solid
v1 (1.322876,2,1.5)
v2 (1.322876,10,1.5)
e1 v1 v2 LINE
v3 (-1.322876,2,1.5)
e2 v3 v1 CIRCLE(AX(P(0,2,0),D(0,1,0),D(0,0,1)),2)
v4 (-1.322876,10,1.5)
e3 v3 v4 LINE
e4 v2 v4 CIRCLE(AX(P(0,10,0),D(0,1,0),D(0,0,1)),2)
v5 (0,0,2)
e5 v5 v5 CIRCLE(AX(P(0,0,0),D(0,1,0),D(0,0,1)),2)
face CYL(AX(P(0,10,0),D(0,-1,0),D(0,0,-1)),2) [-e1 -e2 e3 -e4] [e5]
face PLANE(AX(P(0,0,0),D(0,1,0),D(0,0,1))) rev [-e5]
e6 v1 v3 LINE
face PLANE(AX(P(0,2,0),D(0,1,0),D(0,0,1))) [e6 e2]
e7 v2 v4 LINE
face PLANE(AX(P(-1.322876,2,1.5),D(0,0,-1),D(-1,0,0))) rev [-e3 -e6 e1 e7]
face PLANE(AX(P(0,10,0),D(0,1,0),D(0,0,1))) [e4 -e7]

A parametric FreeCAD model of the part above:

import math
import FreeCAD as App
import Part
import Sketcher
from FreeCAD import Vector
Q = App.Units.Quantity

doc = App.newDocument("Part")
body = doc.addObject("PartDesign::Body", "Body")

sketch1 = body.newObject("Sketcher::SketchObject", "Sketch")
sketch1.AttachmentSupport = (doc.getObject("XZ_Plane"), [""])
sketch1.MapMode = "FlatFace"
sketch1.addGeometry(Part.Circle(Vector(0, 0, 0), Vector(0, 0, 1), 2), False)
sketch1.addConstraint([
    Sketcher.Constraint("Coincident", 0, 3, -1, 1),
    Sketcher.Constraint("Diameter", 0, Q("4 mm")),
])
pad1 = body.newObject("PartDesign::Pad", "Pad")
pad1.Profile = sketch1
pad1.Length = 10
pad1.Reversed = True

sketch2 = body.newObject("Sketcher::SketchObject", "Sketch001")
sketch2.AttachmentSupport = (doc.getObject("XZ_Plane"), [""])
sketch2.MapMode = "FlatFace"
sketch2.AttachmentOffset = App.Placement(Vector(0, 0, -10), App.Rotation())
sketch2.addGeometry([
    Part.LineSegment(Vector(1.3, 1.5, 0), Vector(-1.3, 1.5, 0)),
    Part.ArcOfCircle(Part.Circle(Vector(0, 0, 0), Vector(0, 0, 1), 2), math.radians(49), math.radians(131)),
], False)
sketch2.addConstraint([
    Sketcher.Constraint("Coincident", 0, 1, 1, 1),
    Sketcher.Constraint("Coincident", 1, 2, 0, 2),
    Sketcher.Constraint("Horizontal", 0),
    Sketcher.Constraint("Coincident", 1, 3, -1, 1),
    Sketcher.Constraint("Radius", 1, Q("2 mm")),
    Sketcher.Constraint("DistanceY", -1, 1, 0, 1, Q("1.5 mm")),
])
pocket1 = body.newObject("PartDesign::Pocket", "Pocket")
pocket1.Profile = sketch2
pocket1.Length = 8
pocket1.Reversed = True

doc.recompute()
